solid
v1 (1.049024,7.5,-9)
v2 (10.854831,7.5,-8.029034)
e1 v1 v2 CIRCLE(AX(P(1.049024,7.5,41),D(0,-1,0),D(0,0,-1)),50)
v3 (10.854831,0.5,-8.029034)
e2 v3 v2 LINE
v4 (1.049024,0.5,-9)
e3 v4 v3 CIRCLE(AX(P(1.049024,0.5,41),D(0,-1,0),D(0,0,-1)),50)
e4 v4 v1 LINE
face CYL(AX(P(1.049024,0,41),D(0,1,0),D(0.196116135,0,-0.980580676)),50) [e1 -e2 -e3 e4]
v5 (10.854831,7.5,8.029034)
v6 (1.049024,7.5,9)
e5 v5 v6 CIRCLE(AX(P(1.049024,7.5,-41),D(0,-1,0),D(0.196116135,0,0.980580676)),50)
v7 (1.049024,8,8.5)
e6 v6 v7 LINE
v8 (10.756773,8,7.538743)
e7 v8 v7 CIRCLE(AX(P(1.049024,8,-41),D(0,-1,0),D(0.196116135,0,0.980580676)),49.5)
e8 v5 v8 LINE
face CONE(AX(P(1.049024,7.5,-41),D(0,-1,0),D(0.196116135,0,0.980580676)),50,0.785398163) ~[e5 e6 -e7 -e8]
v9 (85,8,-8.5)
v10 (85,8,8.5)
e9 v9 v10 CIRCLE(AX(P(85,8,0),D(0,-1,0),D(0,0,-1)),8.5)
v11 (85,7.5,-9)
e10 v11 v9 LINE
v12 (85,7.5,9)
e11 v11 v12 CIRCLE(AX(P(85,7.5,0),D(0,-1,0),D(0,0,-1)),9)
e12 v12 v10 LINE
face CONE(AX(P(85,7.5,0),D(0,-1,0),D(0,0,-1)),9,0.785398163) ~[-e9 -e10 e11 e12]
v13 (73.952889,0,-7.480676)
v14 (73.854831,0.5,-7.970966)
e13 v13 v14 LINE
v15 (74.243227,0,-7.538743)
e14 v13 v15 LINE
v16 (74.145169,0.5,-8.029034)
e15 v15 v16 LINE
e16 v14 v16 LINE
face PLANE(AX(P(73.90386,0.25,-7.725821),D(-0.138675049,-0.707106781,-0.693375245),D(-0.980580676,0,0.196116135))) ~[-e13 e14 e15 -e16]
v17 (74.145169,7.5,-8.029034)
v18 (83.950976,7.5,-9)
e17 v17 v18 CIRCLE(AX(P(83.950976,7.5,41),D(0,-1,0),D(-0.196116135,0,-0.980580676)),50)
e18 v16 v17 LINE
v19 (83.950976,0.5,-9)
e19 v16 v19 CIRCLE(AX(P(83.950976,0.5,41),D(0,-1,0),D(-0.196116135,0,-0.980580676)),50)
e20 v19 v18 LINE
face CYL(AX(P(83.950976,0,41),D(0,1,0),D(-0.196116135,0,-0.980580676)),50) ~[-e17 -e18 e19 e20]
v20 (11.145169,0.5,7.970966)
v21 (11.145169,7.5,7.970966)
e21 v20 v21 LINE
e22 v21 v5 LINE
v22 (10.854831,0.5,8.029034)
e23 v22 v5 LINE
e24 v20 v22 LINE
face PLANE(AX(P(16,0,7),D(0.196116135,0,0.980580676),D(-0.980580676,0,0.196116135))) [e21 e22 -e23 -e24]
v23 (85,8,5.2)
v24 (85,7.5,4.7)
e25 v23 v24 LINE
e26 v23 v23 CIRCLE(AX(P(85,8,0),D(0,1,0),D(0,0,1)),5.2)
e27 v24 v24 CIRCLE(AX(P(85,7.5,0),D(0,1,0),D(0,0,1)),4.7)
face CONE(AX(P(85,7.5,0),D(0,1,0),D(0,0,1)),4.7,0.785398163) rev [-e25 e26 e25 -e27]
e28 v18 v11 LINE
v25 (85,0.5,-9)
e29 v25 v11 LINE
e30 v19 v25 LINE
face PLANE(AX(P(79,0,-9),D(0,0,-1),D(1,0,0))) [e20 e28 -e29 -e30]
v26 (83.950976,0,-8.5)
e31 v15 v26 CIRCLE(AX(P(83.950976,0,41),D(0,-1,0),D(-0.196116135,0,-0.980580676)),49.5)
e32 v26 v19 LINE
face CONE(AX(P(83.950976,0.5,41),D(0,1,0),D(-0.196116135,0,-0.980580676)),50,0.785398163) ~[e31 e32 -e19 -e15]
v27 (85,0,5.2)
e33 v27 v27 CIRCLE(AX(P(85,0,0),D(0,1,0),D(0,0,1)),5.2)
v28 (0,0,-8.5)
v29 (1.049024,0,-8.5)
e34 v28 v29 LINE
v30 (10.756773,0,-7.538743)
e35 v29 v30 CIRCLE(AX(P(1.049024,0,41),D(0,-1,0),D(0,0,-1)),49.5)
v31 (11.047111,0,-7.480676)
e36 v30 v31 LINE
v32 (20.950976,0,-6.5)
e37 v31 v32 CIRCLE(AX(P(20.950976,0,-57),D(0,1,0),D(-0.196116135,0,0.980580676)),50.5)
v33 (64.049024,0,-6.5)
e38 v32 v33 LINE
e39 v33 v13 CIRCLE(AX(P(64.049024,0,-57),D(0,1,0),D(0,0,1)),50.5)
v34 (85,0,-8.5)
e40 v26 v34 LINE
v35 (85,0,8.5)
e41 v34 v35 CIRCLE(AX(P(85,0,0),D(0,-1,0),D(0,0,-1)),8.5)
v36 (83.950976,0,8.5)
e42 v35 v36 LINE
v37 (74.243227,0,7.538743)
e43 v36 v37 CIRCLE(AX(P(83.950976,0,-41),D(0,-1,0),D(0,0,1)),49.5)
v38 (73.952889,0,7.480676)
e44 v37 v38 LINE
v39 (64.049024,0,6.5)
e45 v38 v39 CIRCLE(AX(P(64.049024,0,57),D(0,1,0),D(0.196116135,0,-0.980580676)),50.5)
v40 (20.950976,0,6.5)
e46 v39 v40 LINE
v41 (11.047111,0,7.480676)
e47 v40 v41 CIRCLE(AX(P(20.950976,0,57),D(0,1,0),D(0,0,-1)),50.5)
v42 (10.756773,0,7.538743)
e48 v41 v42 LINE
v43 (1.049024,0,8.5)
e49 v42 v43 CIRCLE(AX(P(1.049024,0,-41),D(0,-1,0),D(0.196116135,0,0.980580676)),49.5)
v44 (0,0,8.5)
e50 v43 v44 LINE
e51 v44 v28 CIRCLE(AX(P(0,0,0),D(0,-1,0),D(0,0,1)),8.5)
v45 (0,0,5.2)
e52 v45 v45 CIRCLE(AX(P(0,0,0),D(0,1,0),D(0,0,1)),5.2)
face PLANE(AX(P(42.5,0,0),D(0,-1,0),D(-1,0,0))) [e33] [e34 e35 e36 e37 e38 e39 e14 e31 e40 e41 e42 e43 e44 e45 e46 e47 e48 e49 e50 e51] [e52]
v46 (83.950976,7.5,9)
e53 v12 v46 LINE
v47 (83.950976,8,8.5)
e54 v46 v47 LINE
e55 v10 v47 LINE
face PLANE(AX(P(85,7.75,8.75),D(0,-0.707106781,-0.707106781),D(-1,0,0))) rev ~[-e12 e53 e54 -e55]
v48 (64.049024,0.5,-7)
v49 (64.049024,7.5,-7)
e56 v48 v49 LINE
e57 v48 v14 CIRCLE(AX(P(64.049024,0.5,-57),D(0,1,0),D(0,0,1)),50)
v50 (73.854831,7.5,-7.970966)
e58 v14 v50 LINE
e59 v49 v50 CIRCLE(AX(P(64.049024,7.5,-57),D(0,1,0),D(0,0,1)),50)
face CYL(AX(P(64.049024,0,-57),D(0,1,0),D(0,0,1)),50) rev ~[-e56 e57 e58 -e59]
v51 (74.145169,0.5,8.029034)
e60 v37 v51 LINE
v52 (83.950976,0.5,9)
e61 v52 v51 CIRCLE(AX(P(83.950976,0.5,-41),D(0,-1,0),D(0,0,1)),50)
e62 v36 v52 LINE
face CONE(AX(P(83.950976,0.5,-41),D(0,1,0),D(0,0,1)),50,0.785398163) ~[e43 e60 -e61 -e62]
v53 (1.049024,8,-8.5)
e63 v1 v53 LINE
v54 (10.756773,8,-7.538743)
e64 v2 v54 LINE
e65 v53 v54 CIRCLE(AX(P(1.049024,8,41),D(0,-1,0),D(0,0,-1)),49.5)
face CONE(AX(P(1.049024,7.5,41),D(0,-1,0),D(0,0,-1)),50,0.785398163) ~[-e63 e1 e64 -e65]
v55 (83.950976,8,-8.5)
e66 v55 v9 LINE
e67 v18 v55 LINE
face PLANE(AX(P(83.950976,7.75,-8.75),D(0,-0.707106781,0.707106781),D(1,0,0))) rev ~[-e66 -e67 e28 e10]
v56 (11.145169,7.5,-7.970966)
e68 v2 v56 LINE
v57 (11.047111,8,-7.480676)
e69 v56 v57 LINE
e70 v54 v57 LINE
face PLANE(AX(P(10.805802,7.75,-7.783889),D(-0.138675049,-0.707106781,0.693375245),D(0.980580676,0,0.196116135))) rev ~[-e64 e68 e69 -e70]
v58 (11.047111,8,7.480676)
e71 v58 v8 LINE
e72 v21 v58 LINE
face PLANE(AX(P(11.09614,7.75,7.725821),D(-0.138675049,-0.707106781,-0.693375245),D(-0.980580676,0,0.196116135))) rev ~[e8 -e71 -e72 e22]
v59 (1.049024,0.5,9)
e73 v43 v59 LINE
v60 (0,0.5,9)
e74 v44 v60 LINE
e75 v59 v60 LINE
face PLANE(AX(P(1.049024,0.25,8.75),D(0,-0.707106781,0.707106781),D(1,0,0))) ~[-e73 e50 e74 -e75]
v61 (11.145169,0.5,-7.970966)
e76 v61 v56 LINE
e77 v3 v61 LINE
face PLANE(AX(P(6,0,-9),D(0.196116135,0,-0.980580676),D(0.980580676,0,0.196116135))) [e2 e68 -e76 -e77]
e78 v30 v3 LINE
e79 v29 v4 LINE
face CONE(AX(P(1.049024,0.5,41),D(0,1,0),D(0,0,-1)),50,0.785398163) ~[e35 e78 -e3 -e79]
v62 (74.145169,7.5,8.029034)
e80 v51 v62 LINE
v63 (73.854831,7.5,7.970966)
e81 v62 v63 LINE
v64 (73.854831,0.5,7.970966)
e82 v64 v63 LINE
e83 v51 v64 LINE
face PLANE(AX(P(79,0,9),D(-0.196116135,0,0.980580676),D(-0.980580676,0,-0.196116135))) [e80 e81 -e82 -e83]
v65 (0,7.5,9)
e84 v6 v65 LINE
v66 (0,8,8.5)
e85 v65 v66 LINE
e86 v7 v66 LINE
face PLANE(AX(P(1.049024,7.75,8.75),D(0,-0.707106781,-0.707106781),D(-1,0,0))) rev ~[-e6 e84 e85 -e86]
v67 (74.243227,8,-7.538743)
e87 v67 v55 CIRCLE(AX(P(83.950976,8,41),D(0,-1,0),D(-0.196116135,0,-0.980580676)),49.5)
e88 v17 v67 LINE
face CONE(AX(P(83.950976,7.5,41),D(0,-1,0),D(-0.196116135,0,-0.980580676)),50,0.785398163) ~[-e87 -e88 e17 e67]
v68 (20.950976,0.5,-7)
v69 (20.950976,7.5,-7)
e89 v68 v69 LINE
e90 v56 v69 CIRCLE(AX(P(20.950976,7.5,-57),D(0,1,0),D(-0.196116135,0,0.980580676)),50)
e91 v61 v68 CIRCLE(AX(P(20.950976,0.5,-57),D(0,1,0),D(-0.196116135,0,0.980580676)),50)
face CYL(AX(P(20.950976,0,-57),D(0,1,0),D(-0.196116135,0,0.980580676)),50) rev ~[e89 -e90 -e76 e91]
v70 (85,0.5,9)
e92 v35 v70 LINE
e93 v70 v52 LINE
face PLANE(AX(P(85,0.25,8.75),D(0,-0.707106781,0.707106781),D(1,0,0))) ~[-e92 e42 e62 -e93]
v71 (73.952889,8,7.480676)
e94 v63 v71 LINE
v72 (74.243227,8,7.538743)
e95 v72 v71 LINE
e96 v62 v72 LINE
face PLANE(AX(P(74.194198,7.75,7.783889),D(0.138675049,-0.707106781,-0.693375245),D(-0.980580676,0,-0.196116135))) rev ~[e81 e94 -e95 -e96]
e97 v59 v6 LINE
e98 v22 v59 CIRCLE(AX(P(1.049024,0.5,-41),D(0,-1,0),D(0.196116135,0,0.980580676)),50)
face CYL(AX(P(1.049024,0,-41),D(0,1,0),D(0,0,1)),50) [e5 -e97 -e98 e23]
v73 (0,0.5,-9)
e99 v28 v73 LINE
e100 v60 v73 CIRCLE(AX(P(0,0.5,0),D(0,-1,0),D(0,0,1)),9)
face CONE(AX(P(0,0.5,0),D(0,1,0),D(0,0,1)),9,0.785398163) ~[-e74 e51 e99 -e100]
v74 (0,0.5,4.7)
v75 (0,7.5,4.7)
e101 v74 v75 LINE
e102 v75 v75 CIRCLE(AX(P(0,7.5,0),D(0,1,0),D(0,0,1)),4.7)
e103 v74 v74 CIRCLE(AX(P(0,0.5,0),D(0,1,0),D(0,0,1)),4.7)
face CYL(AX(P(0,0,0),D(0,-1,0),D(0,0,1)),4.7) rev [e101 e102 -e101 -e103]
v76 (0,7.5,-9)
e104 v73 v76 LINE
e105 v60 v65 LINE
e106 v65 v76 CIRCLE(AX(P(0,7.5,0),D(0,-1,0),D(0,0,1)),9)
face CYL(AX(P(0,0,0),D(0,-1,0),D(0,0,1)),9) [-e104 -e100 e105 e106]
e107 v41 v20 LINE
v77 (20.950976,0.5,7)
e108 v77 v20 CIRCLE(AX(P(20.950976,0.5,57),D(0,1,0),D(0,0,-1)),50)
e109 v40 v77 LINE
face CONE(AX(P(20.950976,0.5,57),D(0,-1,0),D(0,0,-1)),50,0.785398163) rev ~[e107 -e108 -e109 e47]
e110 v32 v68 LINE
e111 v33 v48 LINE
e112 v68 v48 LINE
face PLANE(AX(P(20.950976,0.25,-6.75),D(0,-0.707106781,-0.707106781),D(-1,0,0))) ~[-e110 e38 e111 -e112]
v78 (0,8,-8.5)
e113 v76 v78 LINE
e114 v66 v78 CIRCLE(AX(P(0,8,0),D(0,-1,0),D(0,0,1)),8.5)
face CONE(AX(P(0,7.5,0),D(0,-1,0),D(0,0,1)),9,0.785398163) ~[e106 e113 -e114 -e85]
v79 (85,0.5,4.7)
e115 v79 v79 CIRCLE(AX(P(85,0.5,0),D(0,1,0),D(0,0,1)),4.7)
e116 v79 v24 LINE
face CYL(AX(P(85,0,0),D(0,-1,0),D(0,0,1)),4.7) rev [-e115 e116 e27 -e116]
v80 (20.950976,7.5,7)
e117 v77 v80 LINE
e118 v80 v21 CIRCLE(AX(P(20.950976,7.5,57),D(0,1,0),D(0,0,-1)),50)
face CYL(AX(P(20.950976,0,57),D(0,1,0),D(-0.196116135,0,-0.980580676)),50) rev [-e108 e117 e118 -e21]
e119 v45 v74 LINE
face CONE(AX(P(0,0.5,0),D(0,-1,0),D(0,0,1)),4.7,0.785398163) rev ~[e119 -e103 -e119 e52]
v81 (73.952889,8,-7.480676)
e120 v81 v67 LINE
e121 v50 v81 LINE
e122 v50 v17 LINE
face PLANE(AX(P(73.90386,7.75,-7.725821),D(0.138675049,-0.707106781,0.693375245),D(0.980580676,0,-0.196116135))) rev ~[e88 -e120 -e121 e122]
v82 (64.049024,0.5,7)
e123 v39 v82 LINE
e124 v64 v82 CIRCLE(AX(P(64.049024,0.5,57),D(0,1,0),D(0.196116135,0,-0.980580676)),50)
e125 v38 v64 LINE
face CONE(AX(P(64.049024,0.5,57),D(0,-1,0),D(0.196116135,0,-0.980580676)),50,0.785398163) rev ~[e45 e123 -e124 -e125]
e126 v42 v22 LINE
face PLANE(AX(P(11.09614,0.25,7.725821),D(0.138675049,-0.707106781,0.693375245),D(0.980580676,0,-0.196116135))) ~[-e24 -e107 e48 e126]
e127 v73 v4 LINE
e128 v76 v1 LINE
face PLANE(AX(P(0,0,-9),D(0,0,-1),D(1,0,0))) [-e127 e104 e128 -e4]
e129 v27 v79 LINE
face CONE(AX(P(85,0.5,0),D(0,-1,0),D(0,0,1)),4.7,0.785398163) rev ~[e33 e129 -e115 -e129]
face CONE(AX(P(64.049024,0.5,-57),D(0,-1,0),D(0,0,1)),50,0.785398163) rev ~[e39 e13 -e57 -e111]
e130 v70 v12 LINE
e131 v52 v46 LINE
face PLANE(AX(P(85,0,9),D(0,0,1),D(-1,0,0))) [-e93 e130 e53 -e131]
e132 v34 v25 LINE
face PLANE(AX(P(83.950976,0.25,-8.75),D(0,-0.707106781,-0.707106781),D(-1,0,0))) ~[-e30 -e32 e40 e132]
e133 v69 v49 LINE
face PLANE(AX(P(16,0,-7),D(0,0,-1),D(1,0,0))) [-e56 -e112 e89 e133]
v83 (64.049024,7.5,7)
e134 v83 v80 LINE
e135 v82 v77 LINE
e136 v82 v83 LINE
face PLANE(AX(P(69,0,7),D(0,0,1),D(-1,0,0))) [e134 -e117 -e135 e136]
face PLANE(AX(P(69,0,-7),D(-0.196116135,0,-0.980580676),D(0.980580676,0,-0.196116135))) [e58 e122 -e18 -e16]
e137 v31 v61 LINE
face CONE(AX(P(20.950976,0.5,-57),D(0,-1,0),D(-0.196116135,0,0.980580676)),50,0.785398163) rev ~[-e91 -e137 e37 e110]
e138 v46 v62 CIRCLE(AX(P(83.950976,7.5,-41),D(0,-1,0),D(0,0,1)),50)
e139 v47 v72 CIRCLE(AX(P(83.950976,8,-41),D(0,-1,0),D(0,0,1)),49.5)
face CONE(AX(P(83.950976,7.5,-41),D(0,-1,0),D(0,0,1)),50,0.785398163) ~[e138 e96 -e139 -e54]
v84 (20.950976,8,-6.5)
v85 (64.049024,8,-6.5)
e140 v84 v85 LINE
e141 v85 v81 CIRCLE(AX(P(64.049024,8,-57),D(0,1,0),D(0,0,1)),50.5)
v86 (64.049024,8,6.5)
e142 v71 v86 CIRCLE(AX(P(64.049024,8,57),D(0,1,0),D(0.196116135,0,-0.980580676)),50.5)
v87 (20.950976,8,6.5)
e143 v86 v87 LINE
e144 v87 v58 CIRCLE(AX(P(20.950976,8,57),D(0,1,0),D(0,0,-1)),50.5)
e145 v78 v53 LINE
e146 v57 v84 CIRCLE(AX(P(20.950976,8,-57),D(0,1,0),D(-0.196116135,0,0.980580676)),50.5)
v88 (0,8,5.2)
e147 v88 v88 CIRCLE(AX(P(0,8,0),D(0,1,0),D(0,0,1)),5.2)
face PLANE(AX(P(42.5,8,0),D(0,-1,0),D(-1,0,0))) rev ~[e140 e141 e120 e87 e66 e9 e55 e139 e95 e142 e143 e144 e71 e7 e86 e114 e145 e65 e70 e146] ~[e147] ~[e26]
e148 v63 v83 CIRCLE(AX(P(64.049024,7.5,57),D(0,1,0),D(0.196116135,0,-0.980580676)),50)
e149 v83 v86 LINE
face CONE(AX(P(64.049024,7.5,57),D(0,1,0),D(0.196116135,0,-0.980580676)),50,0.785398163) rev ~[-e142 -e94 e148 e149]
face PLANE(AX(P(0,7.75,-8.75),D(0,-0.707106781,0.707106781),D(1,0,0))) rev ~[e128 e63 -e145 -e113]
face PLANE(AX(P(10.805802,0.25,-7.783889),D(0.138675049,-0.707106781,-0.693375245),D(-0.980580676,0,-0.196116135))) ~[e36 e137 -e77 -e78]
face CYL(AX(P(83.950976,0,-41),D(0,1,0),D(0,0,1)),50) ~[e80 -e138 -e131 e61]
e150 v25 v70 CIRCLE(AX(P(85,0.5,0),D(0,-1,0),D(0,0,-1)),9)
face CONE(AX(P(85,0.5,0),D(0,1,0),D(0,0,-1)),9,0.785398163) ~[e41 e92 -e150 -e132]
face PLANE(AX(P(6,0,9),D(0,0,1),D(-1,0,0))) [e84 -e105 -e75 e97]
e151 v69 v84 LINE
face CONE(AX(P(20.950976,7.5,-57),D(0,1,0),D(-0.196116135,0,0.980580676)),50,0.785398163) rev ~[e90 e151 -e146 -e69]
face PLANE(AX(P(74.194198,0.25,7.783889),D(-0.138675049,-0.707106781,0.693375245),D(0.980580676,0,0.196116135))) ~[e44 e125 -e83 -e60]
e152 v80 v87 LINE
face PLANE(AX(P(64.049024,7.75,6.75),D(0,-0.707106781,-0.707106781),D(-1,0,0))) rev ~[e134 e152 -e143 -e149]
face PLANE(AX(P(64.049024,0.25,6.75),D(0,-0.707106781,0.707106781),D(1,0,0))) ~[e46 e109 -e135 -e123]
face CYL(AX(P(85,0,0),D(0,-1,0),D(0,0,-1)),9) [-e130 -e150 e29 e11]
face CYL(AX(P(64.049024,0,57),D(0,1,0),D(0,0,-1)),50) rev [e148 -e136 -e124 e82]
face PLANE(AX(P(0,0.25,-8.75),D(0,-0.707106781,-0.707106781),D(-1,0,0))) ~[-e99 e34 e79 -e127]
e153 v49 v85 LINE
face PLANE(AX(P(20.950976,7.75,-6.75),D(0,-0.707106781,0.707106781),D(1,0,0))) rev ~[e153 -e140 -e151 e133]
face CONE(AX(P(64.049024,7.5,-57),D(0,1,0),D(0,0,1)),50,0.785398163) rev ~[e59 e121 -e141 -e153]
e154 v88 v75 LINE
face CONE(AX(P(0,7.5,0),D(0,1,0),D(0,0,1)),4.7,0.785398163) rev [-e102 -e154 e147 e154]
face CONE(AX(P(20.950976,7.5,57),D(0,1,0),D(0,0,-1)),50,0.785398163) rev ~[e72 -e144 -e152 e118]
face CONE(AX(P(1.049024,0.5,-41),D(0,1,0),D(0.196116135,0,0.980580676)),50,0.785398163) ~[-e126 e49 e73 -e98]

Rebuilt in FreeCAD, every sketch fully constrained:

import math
import FreeCAD as App
import Part
import Sketcher


def edges_at(feature, points):
    """Names of the edges that pass closest to the given points."""
    edges = feature.Shape.Edges
    near = lambda p: min(range(len(edges)), key=lambda i: edges[i].distToShape(Part.Vertex(*p))[0])
    return sorted({f"Edge{near(p) + 1}" for p in points})

doc = App.newDocument("Part")
body = doc.addObject("PartDesign::Body", "Body")

# Sketch on XZ plane
sketch1 = doc.addObject("Sketcher::SketchObject", "Sketch")
body.addObject(sketch1)
sketch1.AttachmentSupport = (doc.XZ_Plane, [""])
sketch1.MapMode = "FlatFace"
sketch1.addGeometry([
    Part.LineSegment(App.Vector(16, -7, 0), App.Vector(6, -9, 0)),  # 0
    Part.LineSegment(App.Vector(6, -9, 0), App.Vector(0, -9, 0)),  # 1
    Part.ArcOfCircle(Part.Circle(App.Vector(0, 0, 0), App.Vector(0, 0, 1), 9), math.radians(90), math.radians(270)),  # 2
    Part.LineSegment(App.Vector(0, 9, 0), App.Vector(6, 9, 0)),  # 3
    Part.LineSegment(App.Vector(6, 9, 0), App.Vector(16, 7, 0)),  # 4
    Part.LineSegment(App.Vector(16, 7, 0), App.Vector(69, 7, 0)),  # 5
    Part.LineSegment(App.Vector(69, 7, 0), App.Vector(79, 9, 0)),  # 6
    Part.LineSegment(App.Vector(79, 9, 0), App.Vector(85, 9, 0)),  # 7
    Part.ArcOfCircle(Part.Circle(App.Vector(85, 0, 0), App.Vector(0, 0, 1), 9), math.radians(-90), math.radians(90)),  # 8
    Part.LineSegment(App.Vector(85, -9, 0), App.Vector(79, -9, 0)),  # 9
    Part.LineSegment(App.Vector(79, -9, 0), App.Vector(69, -7, 0)),  # 10
    Part.LineSegment(App.Vector(69, -7, 0), App.Vector(16, -7, 0)),  # 11
    Part.Circle(App.Vector(85, 0, 0), App.Vector(0, 0, 1), 4.7),  # 12
    Part.Circle(App.Vector(0, 0, 0), App.Vector(0, 0, 1), 4.7),  # 13
], False)
sketch1.addConstraint([
    Sketcher.Constraint("Coincident", 0, 2, 1, 1),
    Sketcher.Constraint("Tangent", 1, 2, 2, 2),
    Sketcher.Constraint("Tangent", 2, 1, 3, 1),
    Sketcher.Constraint("Coincident", 3, 2, 4, 1),
    Sketcher.Constraint("Coincident", 4, 2, 5, 1),
    Sketcher.Constraint("Coincident", 5, 2, 6, 1),
    Sketcher.Constraint("Coincident", 6, 2, 7, 1),
    Sketcher.Constraint("Tangent", 7, 2, 8, 2),
    Sketcher.Constraint("Tangent", 8, 1, 9, 1),
    Sketcher.Constraint("Coincident", 9, 2, 10, 1),
    Sketcher.Constraint("Coincident", 10, 2, 11, 1),
    Sketcher.Constraint("Coincident", 11, 2, 0, 1),
    Sketcher.Constraint("Horizontal", 1),
    Sketcher.Constraint("Horizontal", 3),
    Sketcher.Constraint("Horizontal", 5),
    Sketcher.Constraint("Horizontal", 7),
    Sketcher.Constraint("Horizontal", 9),
    Sketcher.Constraint("Horizontal", 11),
    Sketcher.Constraint("Coincident", 2, 3, -1, 1),
    Sketcher.Constraint("Coincident", 13, 3, -1, 1),
    Sketcher.Constraint("Coincident", 12, 3, 8, 3),
    Sketcher.Constraint("Equal", 2, 8),
    Sketcher.Constraint("Equal", 12, 13),
    Sketcher.Constraint("Symmetric", 6, 2, 9, 2, -1),
    Sketcher.Constraint("Symmetric", 5, 2, 10, 2, -1),
    Sketcher.Constraint("Parallel", 0, 6),
    Sketcher.Constraint("Parallel", 4, 10),
    Sketcher.Constraint("Vertical", 0, 2, 3, 2),
    Sketcher.Constraint("Equal", 3, 7),
    Sketcher.Constraint("Radius", 2, 9.0),
    Sketcher.Constraint("Diameter", 12, 9.4),
    Sketcher.Constraint("DistanceX", 1, 2, 1, 1, 6.0),
    Sketcher.Constraint("DistanceX", 5, 1, 5, 2, 53.0),
    Sketcher.Constraint("DistanceX", -1, 1, 8, 3, 85.0),
    Sketcher.Constraint("DistanceY", -1, 1, 4, 2, 7.0),
])
pad1 = doc.addObject("PartDesign::Pad", "Pad")
body.addObject(pad1)
pad1.Profile = sketch1
pad1.Length = 8
pad1.Reversed = True
doc.recompute()

fillet = doc.addObject("PartDesign::Fillet", "Fillet")
body.addObject(fillet)
fillet.Base = (pad1, edges_at(pad1, [
    (16, 4, -7),
    (69, 4, -7),
    (69, 4, 7),
    (16, 4, 7),
]))
fillet.Radius = 50
doc.recompute()

fillet2 = doc.addObject("PartDesign::Fillet", "Fillet001")
body.addObject(fillet2)
fillet2.Base = (fillet, edges_at(fillet, [
    (6, 4, 9),
    (6, 4, -9),
    (79, 4, -9),
    (79, 4, 9),
]))
fillet2.Radius = 50
doc.recompute()

chamfer = doc.addObject("PartDesign::Chamfer", "Chamfer")
body.addObject(chamfer)
chamfer.Base = (fillet2, edges_at(fillet2, [
    (0, 0, -4.7),
    (0, 8, -4.7),
    (85, 0, -4.7),
    (85, 8, -4.7),
]))
chamfer.Size = 0.5
doc.recompute()

chamfer2 = doc.addObject("PartDesign::Chamfer", "Chamfer001")
body.addObject(chamfer2)
chamfer2.Base = (chamfer, edges_at(chamfer, [
    (0.525, 0, 9),
    (-9, 0, 0),
    (84.475, 0, -9),
    (94, 0, 0),
    (94, 8, 0),
    (84.475, 8, -9),
    (74, 0, 8),
    (-9, 8, 0),
    (74, 8, 8),
    (42.5, 0, 7),
    (42.5, 8, 7),
    (0.525, 8, 9),
    (42.5, 0, -7),
    (42.5, 8, -7),
    (11, 0, -8),
    (11, 8, -8),
    (68.976, 0, 7.243),
    (68.976, 8, 7.243),
    (16.024, 0, 7.243),
    (16.024, 8, 7.243),
    (68.976, 0, -7.243),
    (68.976, 8, -7.243),
    (16.024, 0, -7.243),
    (16.024, 8, -7.243),
    (74, 0, -8),
    (74, 8, -8),
    (11, 0, 8),
    (0.525, 0, -9),
    (84.475, 0, 9),
    (5.976, 0, 8.757),
    (79.024, 0, 8.757),
    (5.976, 0, -8.757),
    (79.024, 0, -8.757),
    (11, 8, 8),
    (84.475, 8, 9),
    (0.525, 8, -9),
    (5.976, 8, 8.757),
    (79.024, 8, 8.757),
    (5.976, 8, -8.757),
    (79.024, 8, -8.757),
]))
chamfer2.Size = 0.5

doc.recompute()
